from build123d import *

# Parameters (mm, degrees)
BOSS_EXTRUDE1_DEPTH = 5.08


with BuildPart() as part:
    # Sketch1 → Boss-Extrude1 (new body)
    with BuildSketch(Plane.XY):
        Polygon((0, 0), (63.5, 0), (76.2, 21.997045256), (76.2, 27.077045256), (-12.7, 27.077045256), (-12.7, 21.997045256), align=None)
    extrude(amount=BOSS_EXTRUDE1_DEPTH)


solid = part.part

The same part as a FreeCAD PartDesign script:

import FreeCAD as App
import Part
import Sketcher
from FreeCAD import Vector
Q = App.Units.Quantity


def add_polygon(sketch, points):
    """Adds a closed chain of lines whose ends are joined by coincident constraints."""
    first, n = sketch.GeometryCount, len(points)
    for a, b in zip(points, points[1:] + points[:1]):
        sketch.addGeometry(Part.LineSegment(App.Vector(*a, 0), App.Vector(*b, 0)), False)
    for i in range(n):
        sketch.addConstraint(Sketcher.Constraint("Coincident", first + i, 2, first + (i + 1) % n, 1))

doc = App.newDocument("Part")
params = doc.addObject("Spreadsheet::Sheet", "Params")
for row, (alias, value) in enumerate([
    ("sketch1_length", "1 in"),
    ("sketch1_width", "2.5 in"),
    ("sketch1_width2", "3.5 in"),
    ("sketch1_height", "0.2 in"),
    ("pad1_length", "0.2 in"),
], start=1):
    params.set(f"A{row}", alias)
    params.set(f"B{row}", "=" + value)
    params.setAlias(f"B{row}", alias)

body = doc.addObject("PartDesign::Body", "Body")

sketch1 = body.newObject("Sketcher::SketchObject", "Sketch")
sketch1.AttachmentSupport = (doc.getObject("XY_Plane"), [""])
sketch1.MapMode = "FlatFace"
add_polygon(sketch1, [(0, 0), (64, 0), (76, 22), (76, 27), (-13, 27), (-13, 22)])
sketch1.addConstraint([
    Sketcher.Constraint("Horizontal", 0),
    Sketcher.Constraint("Vertical", 2),
    Sketcher.Constraint("Horizontal", 3),
    Sketcher.Constraint("Vertical", 4),
    Sketcher.Constraint("Coincident", 5, 2, -1, 1),
    Sketcher.Constraint("Horizontal", 1, 2, 4, 2),
    Sketcher.Constraint("Equal", 1, 5),
    Sketcher.Constraint("Distance", 1, Q("1 in")),
    Sketcher.Constraint("DistanceX", 0, 1, 0, 2, Q("2.5 in")),
    Sketcher.Constraint("DistanceX", 3, 2, 3, 1, Q("3.5 in")),
    Sketcher.Constraint("DistanceY", 2, 1, 2, 2, Q("0.2 in")),
])
sketch1.setExpression("Constraints[13]", "Params.sketch1_length")
sketch1.setExpression("Constraints[14]", "Params.sketch1_width")
sketch1.setExpression("Constraints[15]", "Params.sketch1_width2")
sketch1.setExpression("Constraints[16]", "Params.sketch1_height")
pad1 = body.newObject("PartDesign::Pad", "Pad")
pad1.Profile = sketch1
pad1.setExpression("Length", "Params.pad1_length")

doc.recompute()
